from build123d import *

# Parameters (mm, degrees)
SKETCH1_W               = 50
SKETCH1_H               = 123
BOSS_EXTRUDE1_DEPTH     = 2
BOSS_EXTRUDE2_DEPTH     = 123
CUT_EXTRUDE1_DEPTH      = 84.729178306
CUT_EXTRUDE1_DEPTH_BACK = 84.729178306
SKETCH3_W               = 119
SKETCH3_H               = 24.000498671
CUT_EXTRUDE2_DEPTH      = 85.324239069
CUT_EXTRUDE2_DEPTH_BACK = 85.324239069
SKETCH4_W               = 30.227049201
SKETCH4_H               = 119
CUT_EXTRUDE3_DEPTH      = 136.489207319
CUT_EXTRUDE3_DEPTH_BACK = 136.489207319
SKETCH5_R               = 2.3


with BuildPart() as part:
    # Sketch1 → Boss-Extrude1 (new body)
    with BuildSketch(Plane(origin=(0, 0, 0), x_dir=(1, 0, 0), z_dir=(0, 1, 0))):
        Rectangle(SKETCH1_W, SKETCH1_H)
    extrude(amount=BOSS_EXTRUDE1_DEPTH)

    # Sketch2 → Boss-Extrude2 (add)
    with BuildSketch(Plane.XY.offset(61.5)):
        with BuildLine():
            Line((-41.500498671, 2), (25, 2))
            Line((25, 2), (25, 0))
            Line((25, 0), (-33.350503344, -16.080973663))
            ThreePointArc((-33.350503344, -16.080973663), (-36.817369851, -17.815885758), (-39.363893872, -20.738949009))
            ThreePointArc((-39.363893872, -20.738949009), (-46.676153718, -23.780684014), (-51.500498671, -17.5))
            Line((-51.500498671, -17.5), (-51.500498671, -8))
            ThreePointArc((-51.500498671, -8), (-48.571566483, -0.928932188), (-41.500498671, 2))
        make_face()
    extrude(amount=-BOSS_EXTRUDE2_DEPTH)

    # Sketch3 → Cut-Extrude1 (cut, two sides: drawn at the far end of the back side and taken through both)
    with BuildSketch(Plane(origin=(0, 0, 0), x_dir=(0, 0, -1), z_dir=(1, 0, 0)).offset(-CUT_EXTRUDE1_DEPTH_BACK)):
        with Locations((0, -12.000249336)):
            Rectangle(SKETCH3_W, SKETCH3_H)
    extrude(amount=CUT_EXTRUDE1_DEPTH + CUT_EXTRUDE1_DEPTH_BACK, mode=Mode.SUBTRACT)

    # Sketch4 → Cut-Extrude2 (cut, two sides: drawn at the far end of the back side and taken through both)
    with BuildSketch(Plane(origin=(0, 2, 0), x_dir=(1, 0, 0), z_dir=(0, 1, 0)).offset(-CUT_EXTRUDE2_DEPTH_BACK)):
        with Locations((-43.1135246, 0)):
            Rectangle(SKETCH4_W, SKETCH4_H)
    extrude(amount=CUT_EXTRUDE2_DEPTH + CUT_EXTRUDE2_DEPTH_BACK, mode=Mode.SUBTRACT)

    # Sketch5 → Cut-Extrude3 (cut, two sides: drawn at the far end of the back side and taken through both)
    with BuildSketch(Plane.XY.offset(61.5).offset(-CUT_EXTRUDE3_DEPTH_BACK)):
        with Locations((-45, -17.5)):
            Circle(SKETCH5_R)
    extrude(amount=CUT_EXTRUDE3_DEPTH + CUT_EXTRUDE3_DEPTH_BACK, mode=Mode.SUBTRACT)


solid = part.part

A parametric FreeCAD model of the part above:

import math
import FreeCAD as App
import Part
import Sketcher
from FreeCAD import Vector
Q = App.Units.Quantity


def add_polygon(sketch, points):
    """Adds a closed chain of lines whose ends are joined by coincident constraints."""
    first, n = sketch.GeometryCount, len(points)
    for a, b in zip(points, points[1:] + points[:1]):
        sketch.addGeometry(Part.LineSegment(App.Vector(*a, 0), App.Vector(*b, 0)), False)
    for i in range(n):
        sketch.addConstraint(Sketcher.Constraint("Coincident", first + i, 2, first + (i + 1) % n, 1))

doc = App.newDocument("Part")
body = doc.addObject("PartDesign::Body", "Body")

# Sketch on XZ plane
sketch1 = body.newObject("Sketcher::SketchObject", "Sketch")
sketch1.AttachmentSupport = (doc.getObject("XZ_Plane"), [""])
sketch1.MapMode = "FlatFace"
add_polygon(sketch1, [(-25, -62), (-25, 62), (25, 62), (25, -62)])  # lines 0-3
sketch1.addConstraint(Sketcher.Constraint("Vertical", 0))
sketch1.addConstraint(Sketcher.Constraint("Horizontal", 1))
sketch1.addConstraint(Sketcher.Constraint("Vertical", 2))
sketch1.addConstraint(Sketcher.Constraint("Horizontal", 3))
sketch1.addConstraint(Sketcher.Constraint("Symmetric", 0, 2, 2, 2, -1, 1))
sketch1.addConstraint(Sketcher.Constraint("DistanceX", 1, 1, 1, 2, Q("50 mm")))
sketch1.addConstraint(Sketcher.Constraint("DistanceY", 0, 1, 0, 2, Q("123 mm")))
pad1 = body.newObject("PartDesign::Pad", "Pad")
pad1.Profile = sketch1
pad1.Length = 2
pad1.Reversed = True

# Sketch on XY plane
sketch2 = body.newObject("Sketcher::SketchObject", "Sketch001")
sketch2.AttachmentSupport = (doc.getObject("XY_Plane"), [""])
sketch2.MapMode = "FlatFace"
sketch2.AttachmentOffset = App.Placement(Vector(0, 0, 61.5), App.Rotation())
sketch2.addGeometry(Part.LineSegment(Vector(25, 2, 0), Vector(-41.5, 2, 0)), False)
sketch2.addGeometry(Part.ArcOfCircle(Part.Circle(Vector(-41.5, -8, 0), Vector(0, 0, 1), 10), math.radians(90), math.radians(180)), False)
sketch2.addGeometry(Part.LineSegment(Vector(-51.5, -8, 0), Vector(-51.5, -17.5, 0)), False)
sketch2.addGeometry(Part.ArcOfCircle(Part.Circle(Vector(-45, -17.5, 0), Vector(0, 0, 1), 6.5), math.radians(180), math.radians(330)), False)
sketch2.addGeometry(Part.ArcOfCircle(Part.Circle(Vector(-30.7, -25.7, 0), Vector(0, 0, 1), 10), math.radians(105), math.radians(150)), False)
sketch2.addGeometry(Part.LineSegment(Vector(-33.4, -16.1, 0), Vector(25, 0, 0)), False)
sketch2.addGeometry(Part.LineSegment(Vector(25, 0, 0), Vector(25, 2, 0)), False)
sketch2.addConstraint(Sketcher.Constraint("Tangent", 0, 2, 1, 1))
sketch2.addConstraint(Sketcher.Constraint("Tangent", 1, 2, 2, 1))
sketch2.addConstraint(Sketcher.Constraint("Tangent", 2, 2, 3, 1))
sketch2.addConstraint(Sketcher.Constraint("Tangent", 3, 2, 4, 2))
sketch2.addConstraint(Sketcher.Constraint("Tangent", 4, 1, 5, 1))
sketch2.addConstraint(Sketcher.Constraint("Coincident", 5, 2, 6, 1))
sketch2.addConstraint(Sketcher.Constraint("Coincident", 6, 2, 0, 1))
sketch2.addConstraint(Sketcher.Constraint("Horizontal", 0))
sketch2.addConstraint(Sketcher.Constraint("Vertical", 2))
sketch2.addConstraint(Sketcher.Constraint("Vertical", 6))
sketch2.addConstraint(Sketcher.Constraint("Equal", 1, 4))
sketch2.addConstraint(Sketcher.Constraint("PointOnObject", 5, 2, -1))
sketch2.addConstraint(Sketcher.Constraint("Radius", 1, Q("10 mm")))
sketch2.addConstraint(Sketcher.Constraint("DistanceY", 6, 1, 6, 2, Q("2 mm")))
sketch2.addConstraint(Sketcher.Constraint("DistanceY", 2, 2, 2, 1, Q("9.5 mm")))
sketch2.addConstraint(Sketcher.Constraint("DistanceX", 3, 3, -1, 1, Q("45 mm")))
sketch2.addConstraint(Sketcher.Constraint("DistanceX", -1, 1, 5, 2, Q("25 mm")))
sketch2.addConstraint(Sketcher.Constraint("Radius", 3, Q("6.500499 mm")))
sketch2.addConstraint(Sketcher.Constraint("DistanceY", 3, 2, -1, 1, Q("20.738949 mm")))
pad2 = body.newObject("PartDesign::Pad", "Pad001")
pad2.Profile = sketch2
pad2.Length = 123
pad2.Reversed = True

# Sketch on YZ plane
sketch3 = body.newObject("Sketcher::SketchObject", "Sketch002")
sketch3.AttachmentSupport = (doc.getObject("YZ_Plane"), [""])
sketch3.MapMode = "FlatFace"
add_polygon(sketch3, [(0, 60), (-24, 60), (-24, -60), (0, -60)])  # lines 0-3
sketch3.addConstraint(Sketcher.Constraint("Horizontal", 0))
sketch3.addConstraint(Sketcher.Constraint("Vertical", 1))
sketch3.addConstraint(Sketcher.Constraint("Horizontal", 2))
sketch3.addConstraint(Sketcher.Constraint("Vertical", 3))
sketch3.addConstraint(Sketcher.Constraint("Symmetric", 2, 2, 3, 2, -1, 1))
sketch3.addConstraint(Sketcher.Constraint("DistanceY", 1, 2, 1, 1, Q("119 mm")))
sketch3.addConstraint(Sketcher.Constraint("DistanceX", 0, 2, 0, 1, Q("24.000499 mm")))
pocket1 = body.newObject("PartDesign::Pocket", "Pocket")
pocket1.Profile = sketch3
pocket1.Type = "ThroughAll"
pocket1.Midplane = True

# Sketch on XZ plane
sketch4 = body.newObject("Sketcher::SketchObject", "Sketch003")
sketch4.AttachmentSupport = (doc.getObject("XZ_Plane"), [""])
sketch4.MapMode = "FlatFace"
sketch4.AttachmentOffset = App.Placement(Vector(0, 0, -2), App.Rotation())
add_polygon(sketch4, [(-58, -60), (-58, 60), (-28, 60), (-28, -60)])  # lines 0-3
sketch4.addConstraint(Sketcher.Constraint("Vertical", 0))
sketch4.addConstraint(Sketcher.Constraint("Horizontal", 1))
sketch4.addConstraint(Sketcher.Constraint("Vertical", 2))
sketch4.addConstraint(Sketcher.Constraint("Horizontal", 3))
sketch4.addConstraint(Sketcher.Constraint("DistanceY", 0, 1, 0, 2, Q("119 mm")))
sketch4.addConstraint(Sketcher.Constraint("DistanceX", 1, 2, -1, 1, Q("28 mm")))
sketch4.addConstraint(Sketcher.Constraint("DistanceY", -1, 1, 0, 2, Q("59.5 mm")))
sketch4.addConstraint(Sketcher.Constraint("DistanceX", 1, 1, 1, 2, Q("30.227049 mm")))
pocket2 = body.newObject("PartDesign::Pocket", "Pocket001")
pocket2.Profile = sketch4
pocket2.Type = "ThroughAll"
pocket2.Midplane = True

# Sketch on XY plane
sketch5 = body.newObject("Sketcher::SketchObject", "Sketch004")
sketch5.AttachmentSupport = (doc.getObject("XY_Plane"), [""])
sketch5.MapMode = "FlatFace"
sketch5.AttachmentOffset = App.Placement(Vector(0, 0, 61.5), App.Rotation())
sketch5.addGeometry(Part.Circle(Vector(-45, -17.5, 0), Vector(0, 0, 1), 2.3), False)
sketch5.addConstraint(Sketcher.Constraint("Diameter", 0, Q("4.6 mm")))
sketch5.addConstraint(Sketcher.Constraint("DistanceX", 0, 3, -1, 1, Q("45 mm")))
sketch5.addConstraint(Sketcher.Constraint("DistanceY", 0, 3, -1, 1, Q("17.5 mm")))
pocket3 = body.newObject("PartDesign::Pocket", "Pocket002")
pocket3.Profile = sketch5
pocket3.Type = "ThroughAll"
pocket3.Midplane = True

doc.recompute()
